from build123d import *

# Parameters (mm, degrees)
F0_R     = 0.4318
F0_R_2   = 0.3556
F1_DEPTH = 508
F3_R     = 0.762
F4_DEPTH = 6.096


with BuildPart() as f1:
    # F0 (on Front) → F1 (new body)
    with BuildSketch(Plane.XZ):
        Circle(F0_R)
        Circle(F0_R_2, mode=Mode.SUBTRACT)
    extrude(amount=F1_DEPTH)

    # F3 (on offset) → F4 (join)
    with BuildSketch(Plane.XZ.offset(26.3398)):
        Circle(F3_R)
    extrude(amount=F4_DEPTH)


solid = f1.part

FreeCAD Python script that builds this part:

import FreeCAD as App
import Part
import Sketcher
from FreeCAD import Vector
Q = App.Units.Quantity

doc = App.newDocument("Part")
body = doc.addObject("PartDesign::Body", "Body")

# Sketch on XZ plane
sketch1 = doc.addObject("Sketcher::SketchObject", "Sketch")
body.addObject(sketch1)
sketch1.AttachmentSupport = (doc.XZ_Plane, [""])
sketch1.MapMode = "FlatFace"
sketch1.addGeometry(Part.Circle(Vector(0, 0, 0), Vector(0, 0, 1), 0.43), False)
sketch1.addGeometry(Part.Circle(Vector(0, 0, 0), Vector(0, 0, 1), 0.36), False)
sketch1.addConstraint(Sketcher.Constraint("Coincident", 0, 3, -1, 1))
sketch1.addConstraint(Sketcher.Constraint("Coincident", 1, 3, -1, 1))
sketch1.addConstraint(Sketcher.Constraint("Diameter", 0, Q("0.034 in")))
sketch1.addConstraint(Sketcher.Constraint("Diameter", 1, Q("0.028 in")))
pad1 = doc.addObject("PartDesign::Pad", "Pad")
body.addObject(pad1)
pad1.Profile = sketch1
pad1.Length = Q("20 in")

# Sketch on XZ plane
sketch2 = doc.addObject("Sketcher::SketchObject", "Sketch001")
body.addObject(sketch2)
sketch2.AttachmentSupport = (doc.XZ_Plane, [""])
sketch2.MapMode = "FlatFace"
sketch2.AttachmentOffset = App.Placement(Vector(0, 0, 1.037 * 25.4), App.Rotation())
sketch2.addGeometry(Part.Circle(Vector(0, 0, 0), Vector(0, 0, 1), 0.8), False)
sketch2.addConstraint(Sketcher.Constraint("Coincident", 0, 3, -1, 1))
sketch2.addConstraint(Sketcher.Constraint("Diameter", 0, Q("0.06 in")))
pad2 = doc.addObject("PartDesign::Pad", "Pad001")
body.addObject(pad2)
pad2.Profile = sketch2
pad2.Length = Q("0.24 in")

doc.recompute()
